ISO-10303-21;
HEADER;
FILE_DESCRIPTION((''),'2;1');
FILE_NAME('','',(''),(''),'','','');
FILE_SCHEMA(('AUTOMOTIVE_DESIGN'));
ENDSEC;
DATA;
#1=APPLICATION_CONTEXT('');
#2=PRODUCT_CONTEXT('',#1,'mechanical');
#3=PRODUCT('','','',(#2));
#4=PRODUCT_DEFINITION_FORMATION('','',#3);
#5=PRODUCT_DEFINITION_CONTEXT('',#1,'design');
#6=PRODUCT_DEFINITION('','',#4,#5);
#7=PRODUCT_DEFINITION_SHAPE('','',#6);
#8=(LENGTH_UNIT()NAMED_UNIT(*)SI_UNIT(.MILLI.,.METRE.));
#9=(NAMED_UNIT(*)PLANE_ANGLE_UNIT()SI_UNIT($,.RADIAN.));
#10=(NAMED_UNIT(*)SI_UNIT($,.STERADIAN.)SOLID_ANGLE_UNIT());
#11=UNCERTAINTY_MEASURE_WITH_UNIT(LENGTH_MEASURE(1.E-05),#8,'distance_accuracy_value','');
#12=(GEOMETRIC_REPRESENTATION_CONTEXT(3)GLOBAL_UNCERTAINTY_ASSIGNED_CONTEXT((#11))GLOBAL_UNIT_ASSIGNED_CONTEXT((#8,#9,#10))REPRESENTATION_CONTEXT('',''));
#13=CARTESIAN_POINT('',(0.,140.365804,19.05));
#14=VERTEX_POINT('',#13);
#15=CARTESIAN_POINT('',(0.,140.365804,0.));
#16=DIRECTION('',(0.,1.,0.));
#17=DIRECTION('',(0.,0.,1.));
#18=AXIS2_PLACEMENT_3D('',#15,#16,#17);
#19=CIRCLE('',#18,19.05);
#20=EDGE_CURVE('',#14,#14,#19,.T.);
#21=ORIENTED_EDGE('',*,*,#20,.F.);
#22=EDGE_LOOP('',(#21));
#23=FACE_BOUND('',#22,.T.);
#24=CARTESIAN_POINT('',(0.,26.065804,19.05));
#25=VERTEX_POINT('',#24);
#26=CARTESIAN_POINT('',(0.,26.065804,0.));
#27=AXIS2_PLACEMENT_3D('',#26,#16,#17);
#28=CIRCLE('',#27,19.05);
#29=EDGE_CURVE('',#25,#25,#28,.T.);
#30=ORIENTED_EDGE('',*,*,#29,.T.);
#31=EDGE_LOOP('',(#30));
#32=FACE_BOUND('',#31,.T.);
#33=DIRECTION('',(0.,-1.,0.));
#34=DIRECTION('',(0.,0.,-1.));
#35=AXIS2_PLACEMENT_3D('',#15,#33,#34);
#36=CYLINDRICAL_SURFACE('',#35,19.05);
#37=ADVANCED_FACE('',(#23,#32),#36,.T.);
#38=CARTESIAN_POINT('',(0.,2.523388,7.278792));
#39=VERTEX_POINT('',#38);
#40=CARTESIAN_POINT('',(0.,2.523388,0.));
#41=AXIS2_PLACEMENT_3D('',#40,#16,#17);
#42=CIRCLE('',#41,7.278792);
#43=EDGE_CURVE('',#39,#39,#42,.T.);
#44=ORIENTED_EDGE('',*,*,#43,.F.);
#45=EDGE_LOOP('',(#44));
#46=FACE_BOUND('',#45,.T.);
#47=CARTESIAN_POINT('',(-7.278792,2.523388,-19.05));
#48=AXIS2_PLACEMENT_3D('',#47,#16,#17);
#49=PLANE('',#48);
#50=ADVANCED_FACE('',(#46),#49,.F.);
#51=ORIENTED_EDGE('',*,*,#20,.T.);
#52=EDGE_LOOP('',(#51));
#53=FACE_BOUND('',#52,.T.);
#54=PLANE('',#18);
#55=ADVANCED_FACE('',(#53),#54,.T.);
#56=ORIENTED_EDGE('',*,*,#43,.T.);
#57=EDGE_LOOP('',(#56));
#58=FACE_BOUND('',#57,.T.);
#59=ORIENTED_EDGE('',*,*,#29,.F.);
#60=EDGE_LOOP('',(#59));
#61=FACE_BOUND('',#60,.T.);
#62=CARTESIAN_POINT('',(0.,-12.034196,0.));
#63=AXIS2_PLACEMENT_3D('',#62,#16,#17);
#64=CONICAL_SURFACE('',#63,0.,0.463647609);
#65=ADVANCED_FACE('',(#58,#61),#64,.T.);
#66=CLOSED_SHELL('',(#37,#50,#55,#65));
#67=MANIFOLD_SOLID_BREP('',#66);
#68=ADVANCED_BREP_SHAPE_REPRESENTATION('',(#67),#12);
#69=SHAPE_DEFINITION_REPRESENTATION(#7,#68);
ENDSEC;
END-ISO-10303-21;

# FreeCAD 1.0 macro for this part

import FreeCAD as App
import Part
import Sketcher
from FreeCAD import Vector
Q = App.Units.Quantity


def add_polygon(sketch, points):
    """Adds a closed chain of lines whose ends are joined by coincident constraints."""
    first, n = sketch.GeometryCount, len(points)
    for a, b in zip(points, points[1:] + points[:1]):
        sketch.addGeometry(Part.LineSegment(App.Vector(*a, 0), App.Vector(*b, 0)), False)
    for i in range(n):
        sketch.addConstraint(Sketcher.Constraint("Coincident", first + i, 2, first + (i + 1) % n, 1))

doc = App.newDocument("Part")
body = doc.addObject("PartDesign::Body", "Body")

# Sketch on XY plane
sketch1 = doc.addObject("Sketcher::SketchObject", "Sketch")
body.addObject(sketch1)
sketch1.AttachmentSupport = (doc.XY_Plane, [""])
sketch1.MapMode = "FlatFace"
add_polygon(sketch1, [(19, 26), (0, 26), (0, -12)])  # lines 0-2
sketch1.addConstraint(Sketcher.Constraint("Horizontal", 0))
sketch1.addConstraint(Sketcher.Constraint("Vertical", 1))
sketch1.addConstraint(Sketcher.Constraint("PointOnObject", 0, 2, -2))
sketch1.addConstraint(Sketcher.Constraint("DistanceY", 1, 2, 1, 1, Q("1.5 in")))
sketch1.addConstraint(Sketcher.Constraint("DistanceX", 0, 2, 0, 1, Q("0.75 in")))
sketch1.addConstraint(Sketcher.Constraint("DistanceY", -1, 1, 0, 2, Q("26.065804 mm")))
revolution = doc.addObject("PartDesign::Revolution", "Revolution")
body.addObject(revolution)
revolution.Profile = sketch1
revolution.ReferenceAxis = (sketch1, ["V_Axis"])
revolution.Angle = 360

# Sketch on XZ plane
sketch2 = doc.addObject("Sketcher::SketchObject", "Sketch001")
body.addObject(sketch2)
sketch2.AttachmentSupport = (doc.XZ_Plane, [""])
sketch2.MapMode = "FlatFace"
sketch2.AttachmentOffset = App.Placement(Vector(0, 0, -26.065804), App.Rotation())
sketch2.addGeometry(Part.Circle(Vector(0, 0, 0), Vector(0, 0, 1), 19), False)
sketch2.addConstraint(Sketcher.Constraint("Coincident", 0, 3, -1, 1))
sketch2.addConstraint(Sketcher.Constraint("Diameter", 0, Q("1.5 in")))
pad1 = doc.addObject("PartDesign::Pad", "Pad")
body.addObject(pad1)
pad1.Profile = sketch2
pad1.Length = Q("4.5 in")
pad1.Reversed = True

# Sketch on XY plane
sketch3 = doc.addObject("Sketcher::SketchObject", "Sketch002")
body.addObject(sketch3)
sketch3.AttachmentSupport = (doc.XY_Plane, [""])
sketch3.MapMode = "FlatFace"
add_polygon(sketch3, [(7, 3), (-7, 3), (0, -12)])  # lines 0-2
sketch3.addConstraint(Sketcher.Constraint("Horizontal", 0))
sketch3.addConstraint(Sketcher.Constraint("PointOnObject", 1, 2, -2))
sketch3.addConstraint(Sketcher.Constraint("Equal", 1, 2))
sketch3.addConstraint(Sketcher.Constraint("DistanceX", 0, 2, 0, 1, Q("14.557584 mm")))
sketch3.addConstraint(Sketcher.Constraint("Distance", 1, Q("16.275874 mm")))
sketch3.addConstraint(Sketcher.Constraint("DistanceY", -1, 1, 0, 2, Q("2.523388 mm")))
pocket1 = doc.addObject("PartDesign::Pocket", "Pocket")
body.addObject(pocket1)
pocket1.Profile = sketch3
pocket1.Type = "ThroughAll"
pocket1.Midplane = True

doc.recompute()
